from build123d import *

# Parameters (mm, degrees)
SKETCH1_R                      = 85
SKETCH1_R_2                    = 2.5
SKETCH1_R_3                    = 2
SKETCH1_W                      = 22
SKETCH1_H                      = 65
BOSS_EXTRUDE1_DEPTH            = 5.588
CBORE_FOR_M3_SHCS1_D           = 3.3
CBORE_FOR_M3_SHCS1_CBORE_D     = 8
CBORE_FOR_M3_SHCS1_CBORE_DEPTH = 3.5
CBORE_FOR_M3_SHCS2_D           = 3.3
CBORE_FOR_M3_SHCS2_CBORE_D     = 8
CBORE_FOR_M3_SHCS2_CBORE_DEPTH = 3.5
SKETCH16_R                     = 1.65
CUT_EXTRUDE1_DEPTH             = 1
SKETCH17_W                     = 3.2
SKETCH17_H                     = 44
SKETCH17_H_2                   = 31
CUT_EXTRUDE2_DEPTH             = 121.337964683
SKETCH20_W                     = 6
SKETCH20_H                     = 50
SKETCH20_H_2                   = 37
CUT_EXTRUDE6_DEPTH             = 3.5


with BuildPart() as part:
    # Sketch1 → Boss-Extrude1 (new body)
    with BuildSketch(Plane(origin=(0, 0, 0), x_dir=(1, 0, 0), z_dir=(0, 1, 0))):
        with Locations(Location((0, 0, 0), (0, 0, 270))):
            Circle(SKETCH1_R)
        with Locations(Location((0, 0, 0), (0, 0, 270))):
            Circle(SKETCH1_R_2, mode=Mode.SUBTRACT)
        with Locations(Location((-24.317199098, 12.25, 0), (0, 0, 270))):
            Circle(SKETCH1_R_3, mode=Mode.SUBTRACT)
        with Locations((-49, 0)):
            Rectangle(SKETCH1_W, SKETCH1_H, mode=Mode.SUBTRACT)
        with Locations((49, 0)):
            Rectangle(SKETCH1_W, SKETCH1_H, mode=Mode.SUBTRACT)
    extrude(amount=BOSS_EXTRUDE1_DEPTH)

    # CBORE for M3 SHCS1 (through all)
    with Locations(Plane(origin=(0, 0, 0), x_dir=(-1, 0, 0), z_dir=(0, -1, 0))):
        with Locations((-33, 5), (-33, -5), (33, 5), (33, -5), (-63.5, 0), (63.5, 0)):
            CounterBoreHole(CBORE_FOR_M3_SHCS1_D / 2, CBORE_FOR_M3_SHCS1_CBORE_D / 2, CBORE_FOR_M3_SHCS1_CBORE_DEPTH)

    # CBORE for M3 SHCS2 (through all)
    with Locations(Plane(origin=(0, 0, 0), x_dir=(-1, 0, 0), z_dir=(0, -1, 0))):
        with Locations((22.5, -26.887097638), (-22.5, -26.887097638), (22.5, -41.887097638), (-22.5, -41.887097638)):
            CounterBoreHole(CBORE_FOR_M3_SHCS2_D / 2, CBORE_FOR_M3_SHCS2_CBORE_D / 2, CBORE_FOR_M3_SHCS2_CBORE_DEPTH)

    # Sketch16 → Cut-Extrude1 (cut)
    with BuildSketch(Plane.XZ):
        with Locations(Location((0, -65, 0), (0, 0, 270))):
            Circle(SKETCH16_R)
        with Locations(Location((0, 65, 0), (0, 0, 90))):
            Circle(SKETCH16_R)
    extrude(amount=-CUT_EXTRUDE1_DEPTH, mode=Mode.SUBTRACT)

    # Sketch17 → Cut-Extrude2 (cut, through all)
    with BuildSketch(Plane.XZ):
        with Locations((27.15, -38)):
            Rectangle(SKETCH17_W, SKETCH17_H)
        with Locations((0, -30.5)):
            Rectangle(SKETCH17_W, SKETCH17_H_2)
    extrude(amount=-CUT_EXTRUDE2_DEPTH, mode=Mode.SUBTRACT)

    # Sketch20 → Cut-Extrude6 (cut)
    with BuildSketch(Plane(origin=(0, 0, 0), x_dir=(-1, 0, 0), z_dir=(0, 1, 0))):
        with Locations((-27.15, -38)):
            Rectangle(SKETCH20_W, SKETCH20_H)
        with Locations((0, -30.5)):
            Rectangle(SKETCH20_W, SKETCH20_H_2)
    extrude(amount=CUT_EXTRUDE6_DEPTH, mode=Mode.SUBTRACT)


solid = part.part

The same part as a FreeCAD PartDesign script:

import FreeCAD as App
import Part
import Sketcher
Q = App.Units.Quantity

doc = App.newDocument("Part")
body = doc.addObject("PartDesign::Body", "Body")

sketch1 = body.newObject("Sketcher::SketchObject", "Sketch")
sketch1.AttachmentSupport = (doc.getObject("XZ_Plane"), [""])
sketch1.MapMode = "FlatFace"
sketch1.addGeometry([
    Part.Circle(App.Vector(0, 0, 0), App.Vector(0, 0, 1), 85),
    Part.Circle(App.Vector(-24.3, -12.2, 0), App.Vector(0, 0, 1), 2),
    Part.LineSegment(App.Vector(-38, 32.5, 0), App.Vector(-60, 32.5, 0)),
    Part.LineSegment(App.Vector(-60, 32.5, 0), App.Vector(-60, -32.5, 0)),
    Part.LineSegment(App.Vector(-60, -32.5, 0), App.Vector(-38, -32.5, 0)),
    Part.LineSegment(App.Vector(-38, -32.5, 0), App.Vector(-38, 32.5, 0)),
    Part.LineSegment(App.Vector(60, 32.5, 0), App.Vector(38, 32.5, 0)),
    Part.LineSegment(App.Vector(38, 32.5, 0), App.Vector(38, -32.5, 0)),
    Part.LineSegment(App.Vector(38, -32.5, 0), App.Vector(60, -32.5, 0)),
    Part.LineSegment(App.Vector(60, -32.5, 0), App.Vector(60, 32.5, 0)),
    Part.Circle(App.Vector(0, 0, 0), App.Vector(0, 0, 1), 2.5),
], False)
sketch1.addConstraint([
    Sketcher.Constraint("Coincident", 2, 2, 3, 1),
    Sketcher.Constraint("Coincident", 3, 2, 4, 1),
    Sketcher.Constraint("Coincident", 4, 2, 5, 1),
    Sketcher.Constraint("Coincident", 5, 2, 2, 1),
    Sketcher.Constraint("Coincident", 6, 2, 7, 1),
    Sketcher.Constraint("Coincident", 7, 2, 8, 1),
    Sketcher.Constraint("Coincident", 8, 2, 9, 1),
    Sketcher.Constraint("Coincident", 9, 2, 6, 1),
    Sketcher.Constraint("Horizontal", 2),
    Sketcher.Constraint("Vertical", 3),
    Sketcher.Constraint("Horizontal", 4),
    Sketcher.Constraint("Vertical", 5),
    Sketcher.Constraint("Horizontal", 6),
    Sketcher.Constraint("Vertical", 7),
    Sketcher.Constraint("Horizontal", 8),
    Sketcher.Constraint("Vertical", 9),
    Sketcher.Constraint("Coincident", 0, 3, -1, 1),
    Sketcher.Constraint("Coincident", 10, 3, -1, 1),
    Sketcher.Constraint("Symmetric", 4, 2, 6, 2, -1, 1),
    Sketcher.Constraint("Symmetric", 2, 2, 8, 2, -1, 1),
    Sketcher.Constraint("Horizontal", 5, 2, 6, 2),
    Sketcher.Constraint("Diameter", 0, Q("170 mm")),
    Sketcher.Constraint("Diameter", 1, Q("4 mm")),
    Sketcher.Constraint("Diameter", 10, Q("5 mm")),
    Sketcher.Constraint("DistanceX", 2, 2, 2, 1, Q("22 mm")),
    Sketcher.Constraint("DistanceY", 3, 2, 3, 1, Q("65 mm")),
    Sketcher.Constraint("DistanceX", 2, 2, -1, 1, Q("60 mm")),
    Sketcher.Constraint("DistanceY", 1, 3, -1, 1, Q("12.25 mm")),
    Sketcher.Constraint("DistanceX", 1, 3, -1, 1, Q("24.317199 mm")),
])
pad1 = body.newObject("PartDesign::Pad", "Pad")
pad1.Profile = sketch1
pad1.Length = 5.588
pad1.Reversed = True

sketch2 = body.newObject("Sketcher::SketchObject", "Sketch001")
sketch2.AttachmentSupport = (doc.getObject("XZ_Plane"), [""])
sketch2.MapMode = "FlatFace"
sketch2.addGeometry([
    Part.Circle(App.Vector(33, -5, 0), App.Vector(0, 0, 1), 1.6),
    Part.Circle(App.Vector(33, 5, 0), App.Vector(0, 0, 1), 1.6),
    Part.Circle(App.Vector(-33, -5, 0), App.Vector(0, 0, 1), 1.6),
    Part.Circle(App.Vector(-33, 5, 0), App.Vector(0, 0, 1), 1.6),
    Part.Circle(App.Vector(63.5, 0, 0), App.Vector(0, 0, 1), 1.6),
    Part.Circle(App.Vector(-63.5, 0, 0), App.Vector(0, 0, 1), 1.6),
], False)
sketch2.addConstraint([
    Sketcher.Constraint("Equal", 0, 1),
    Sketcher.Constraint("Equal", 1, 2),
    Sketcher.Constraint("Equal", 2, 3),
    Sketcher.Constraint("Equal", 3, 4),
    Sketcher.Constraint("Equal", 4, 5),
    Sketcher.Constraint("Symmetric", 1, 3, 2, 3, -1, 1),
    Sketcher.Constraint("Symmetric", 0, 3, 3, 3, -1, 1),
    Sketcher.Constraint("Symmetric", 4, 3, 5, 3, -1, 1),
    Sketcher.Constraint("Symmetric", 0, 3, 2, 3, -2),
    Sketcher.Constraint("PointOnObject", 4, 3, -1),
    Sketcher.Constraint("Diameter", 0, Q("3.3 mm")),
    Sketcher.Constraint("DistanceX", -1, 1, 0, 3, Q("33 mm")),
    Sketcher.Constraint("DistanceY", 0, 3, -1, 1, Q("5 mm")),
    Sketcher.Constraint("DistanceX", 5, 3, 4, 3, Q("127 mm")),
])
doc.recompute()
hole = body.newObject("PartDesign::Hole", "Hole")
hole.Profile = sketch2
hole.ThreadType = "None"
hole.Diameter = 3.3
hole.DepthType = "ThroughAll"
hole.HoleCutType = "Counterbore"
hole.HoleCutDiameter = 8
hole.HoleCutDepth = 3.5

sketch3 = body.newObject("Sketcher::SketchObject", "Sketch002")
sketch3.AttachmentSupport = (doc.getObject("XZ_Plane"), [""])
sketch3.MapMode = "FlatFace"
sketch3.addGeometry([
    Part.Circle(App.Vector(-22.5, 26.9, 0), App.Vector(0, 0, 1), 1.6),
    Part.Circle(App.Vector(22.5, 26.9, 0), App.Vector(0, 0, 1), 1.6),
    Part.Circle(App.Vector(-22.5, 41.9, 0), App.Vector(0, 0, 1), 1.6),
    Part.Circle(App.Vector(22.5, 41.9, 0), App.Vector(0, 0, 1), 1.6),
], False)
sketch3.addConstraint([
    Sketcher.Constraint("Equal", 0, 1),
    Sketcher.Constraint("Equal", 1, 2),
    Sketcher.Constraint("Equal", 2, 3),
    Sketcher.Constraint("Symmetric", 0, 3, 1, 3, -2),
    Sketcher.Constraint("Symmetric", 2, 3, 3, 3, -2),
    Sketcher.Constraint("Vertical", 0, 3, 2, 3),
    Sketcher.Constraint("Diameter", 0, Q("3.3 mm")),
    Sketcher.Constraint("DistanceX", 0, 3, 1, 3, Q("45 mm")),
    Sketcher.Constraint("DistanceY", 0, 3, 2, 3, Q("15 mm")),
    Sketcher.Constraint("DistanceY", -1, 1, 0, 3, Q("26.887098 mm")),
])
doc.recompute()
hole2 = body.newObject("PartDesign::Hole", "Hole001")
hole2.Profile = sketch3
hole2.ThreadType = "None"
hole2.Diameter = 3.3
hole2.DepthType = "ThroughAll"
hole2.HoleCutType = "Counterbore"
hole2.HoleCutDiameter = 8
hole2.HoleCutDepth = 3.5

sketch4 = body.newObject("Sketcher::SketchObject", "Sketch003")
sketch4.AttachmentSupport = (doc.getObject("XZ_Plane"), [""])
sketch4.MapMode = "FlatFace"
sketch4.addGeometry([
    Part.Circle(App.Vector(0, -65, 0), App.Vector(0, 0, 1), 1.6),
    Part.Circle(App.Vector(0, 65, 0), App.Vector(0, 0, 1), 1.6),
], False)
sketch4.addConstraint([
    Sketcher.Constraint("Equal", 0, 1),
    Sketcher.Constraint("Symmetric", 0, 3, 1, 3, -1, 1),
    Sketcher.Constraint("PointOnObject", 0, 3, -2),
    Sketcher.Constraint("Diameter", 0, Q("3.3 mm")),
    Sketcher.Constraint("DistanceY", 0, 3, -1, 1, Q("65 mm")),
])
pocket1 = body.newObject("PartDesign::Pocket", "Pocket")
pocket1.Profile = sketch4
pocket1.Length = 1

sketch5 = body.newObject("Sketcher::SketchObject", "Sketch004")
sketch5.AttachmentSupport = (doc.getObject("XZ_Plane"), [""])
sketch5.MapMode = "FlatFace"
sketch5.addGeometry([
    Part.LineSegment(App.Vector(25.6, -16, 0), App.Vector(25.6, -60, 0)),
    Part.LineSegment(App.Vector(25.6, -60, 0), App.Vector(28.8, -60, 0)),
    Part.LineSegment(App.Vector(28.8, -60, 0), App.Vector(28.8, -16, 0)),
    Part.LineSegment(App.Vector(28.8, -16, 0), App.Vector(25.6, -16, 0)),
    Part.LineSegment(App.Vector(-1.6, -15, 0), App.Vector(-1.6, -46, 0)),
    Part.LineSegment(App.Vector(-1.6, -46, 0), App.Vector(1.6, -46, 0)),
    Part.LineSegment(App.Vector(1.6, -46, 0), App.Vector(1.6, -15, 0)),
    Part.LineSegment(App.Vector(1.6, -15, 0), App.Vector(-1.6, -15, 0)),
], False)
sketch5.addConstraint([
    Sketcher.Constraint("Coincident", 0, 2, 1, 1),
    Sketcher.Constraint("Coincident", 1, 2, 2, 1),
    Sketcher.Constraint("Coincident", 2, 2, 3, 1),
    Sketcher.Constraint("Coincident", 3, 2, 0, 1),
    Sketcher.Constraint("Coincident", 4, 2, 5, 1),
    Sketcher.Constraint("Coincident", 5, 2, 6, 1),
    Sketcher.Constraint("Coincident", 6, 2, 7, 1),
    Sketcher.Constraint("Coincident", 7, 2, 4, 1),
    Sketcher.Constraint("Vertical", 0),
    Sketcher.Constraint("Horizontal", 1),
    Sketcher.Constraint("Vertical", 2),
    Sketcher.Constraint("Horizontal", 3),
    Sketcher.Constraint("Vertical", 4),
    Sketcher.Constraint("Horizontal", 5),
    Sketcher.Constraint("Vertical", 6),
    Sketcher.Constraint("Horizontal", 7),
    Sketcher.Constraint("Equal", 3, 5),
    Sketcher.Constraint("DistanceY", 0, 2, 0, 1, Q("44 mm")),
    Sketcher.Constraint("DistanceY", 4, 2, 4, 1, Q("31 mm")),
    Sketcher.Constraint("DistanceX", 1, 1, 1, 2, Q("3.2 mm")),
    Sketcher.Constraint("DistanceY", 0, 2, -1, 1, Q("60 mm")),
    Sketcher.Constraint("DistanceY", 4, 2, -1, 1, Q("46 mm")),
    Sketcher.Constraint("DistanceX", 4, 2, -1, 1, Q("1.6 mm")),
    Sketcher.Constraint("DistanceX", -1, 1, 0, 2, Q("25.55 mm")),
])
pocket2 = body.newObject("PartDesign::Pocket", "Pocket001")
pocket2.Profile = sketch5
pocket2.Type = "ThroughAll"

sketch6 = body.newObject("Sketcher::SketchObject", "Sketch005")
sketch6.AttachmentSupport = (doc.getObject("XZ_Plane"), [""])
sketch6.MapMode = "FlatFace"
sketch6.addGeometry([
    Part.LineSegment(App.Vector(30, -13, 0), App.Vector(30, -63, 0)),
    Part.LineSegment(App.Vector(30, -63, 0), App.Vector(24, -63, 0)),
    Part.LineSegment(App.Vector(24, -63, 0), App.Vector(24, -13, 0)),
    Part.LineSegment(App.Vector(24, -13, 0), App.Vector(30, -13, 0)),
    Part.LineSegment(App.Vector(3, -12, 0), App.Vector(3, -49, 0)),
    Part.LineSegment(App.Vector(3, -49, 0), App.Vector(-3, -49, 0)),
    Part.LineSegment(App.Vector(-3, -49, 0), App.Vector(-3, -12, 0)),
    Part.LineSegment(App.Vector(-3, -12, 0), App.Vector(3, -12, 0)),
], False)
sketch6.addConstraint([
    Sketcher.Constraint("Coincident", 0, 2, 1, 1),
    Sketcher.Constraint("Coincident", 1, 2, 2, 1),
    Sketcher.Constraint("Coincident", 2, 2, 3, 1),
    Sketcher.Constraint("Coincident", 3, 2, 0, 1),
    Sketcher.Constraint("Coincident", 4, 2, 5, 1),
    Sketcher.Constraint("Coincident", 5, 2, 6, 1),
    Sketcher.Constraint("Coincident", 6, 2, 7, 1),
    Sketcher.Constraint("Coincident", 7, 2, 4, 1),
    Sketcher.Constraint("Vertical", 0),
    Sketcher.Constraint("Horizontal", 1),
    Sketcher.Constraint("Vertical", 2),
    Sketcher.Constraint("Horizontal", 3),
    Sketcher.Constraint("Vertical", 4),
    Sketcher.Constraint("Horizontal", 5),
    Sketcher.Constraint("Vertical", 6),
    Sketcher.Constraint("Horizontal", 7),
    Sketcher.Constraint("Equal", 3, 5),
    Sketcher.Constraint("DistanceX", 1, 2, 1, 1, Q("6 mm")),
    Sketcher.Constraint("DistanceY", 0, 2, 0, 1, Q("50 mm")),
    Sketcher.Constraint("DistanceY", 4, 2, 4, 1, Q("37 mm")),
    Sketcher.Constraint("DistanceY", 0, 2, -1, 1, Q("63 mm")),
    Sketcher.Constraint("DistanceX", -1, 1, 4, 2, Q("3 mm")),
    Sketcher.Constraint("DistanceY", 4, 2, -1, 1, Q("49 mm")),
    Sketcher.Constraint("DistanceX", -1, 1, 0, 2, Q("30.15 mm")),
])
pocket3 = body.newObject("PartDesign::Pocket", "Pocket002")
pocket3.Profile = sketch6
pocket3.Length = 3.5

doc.recompute()
